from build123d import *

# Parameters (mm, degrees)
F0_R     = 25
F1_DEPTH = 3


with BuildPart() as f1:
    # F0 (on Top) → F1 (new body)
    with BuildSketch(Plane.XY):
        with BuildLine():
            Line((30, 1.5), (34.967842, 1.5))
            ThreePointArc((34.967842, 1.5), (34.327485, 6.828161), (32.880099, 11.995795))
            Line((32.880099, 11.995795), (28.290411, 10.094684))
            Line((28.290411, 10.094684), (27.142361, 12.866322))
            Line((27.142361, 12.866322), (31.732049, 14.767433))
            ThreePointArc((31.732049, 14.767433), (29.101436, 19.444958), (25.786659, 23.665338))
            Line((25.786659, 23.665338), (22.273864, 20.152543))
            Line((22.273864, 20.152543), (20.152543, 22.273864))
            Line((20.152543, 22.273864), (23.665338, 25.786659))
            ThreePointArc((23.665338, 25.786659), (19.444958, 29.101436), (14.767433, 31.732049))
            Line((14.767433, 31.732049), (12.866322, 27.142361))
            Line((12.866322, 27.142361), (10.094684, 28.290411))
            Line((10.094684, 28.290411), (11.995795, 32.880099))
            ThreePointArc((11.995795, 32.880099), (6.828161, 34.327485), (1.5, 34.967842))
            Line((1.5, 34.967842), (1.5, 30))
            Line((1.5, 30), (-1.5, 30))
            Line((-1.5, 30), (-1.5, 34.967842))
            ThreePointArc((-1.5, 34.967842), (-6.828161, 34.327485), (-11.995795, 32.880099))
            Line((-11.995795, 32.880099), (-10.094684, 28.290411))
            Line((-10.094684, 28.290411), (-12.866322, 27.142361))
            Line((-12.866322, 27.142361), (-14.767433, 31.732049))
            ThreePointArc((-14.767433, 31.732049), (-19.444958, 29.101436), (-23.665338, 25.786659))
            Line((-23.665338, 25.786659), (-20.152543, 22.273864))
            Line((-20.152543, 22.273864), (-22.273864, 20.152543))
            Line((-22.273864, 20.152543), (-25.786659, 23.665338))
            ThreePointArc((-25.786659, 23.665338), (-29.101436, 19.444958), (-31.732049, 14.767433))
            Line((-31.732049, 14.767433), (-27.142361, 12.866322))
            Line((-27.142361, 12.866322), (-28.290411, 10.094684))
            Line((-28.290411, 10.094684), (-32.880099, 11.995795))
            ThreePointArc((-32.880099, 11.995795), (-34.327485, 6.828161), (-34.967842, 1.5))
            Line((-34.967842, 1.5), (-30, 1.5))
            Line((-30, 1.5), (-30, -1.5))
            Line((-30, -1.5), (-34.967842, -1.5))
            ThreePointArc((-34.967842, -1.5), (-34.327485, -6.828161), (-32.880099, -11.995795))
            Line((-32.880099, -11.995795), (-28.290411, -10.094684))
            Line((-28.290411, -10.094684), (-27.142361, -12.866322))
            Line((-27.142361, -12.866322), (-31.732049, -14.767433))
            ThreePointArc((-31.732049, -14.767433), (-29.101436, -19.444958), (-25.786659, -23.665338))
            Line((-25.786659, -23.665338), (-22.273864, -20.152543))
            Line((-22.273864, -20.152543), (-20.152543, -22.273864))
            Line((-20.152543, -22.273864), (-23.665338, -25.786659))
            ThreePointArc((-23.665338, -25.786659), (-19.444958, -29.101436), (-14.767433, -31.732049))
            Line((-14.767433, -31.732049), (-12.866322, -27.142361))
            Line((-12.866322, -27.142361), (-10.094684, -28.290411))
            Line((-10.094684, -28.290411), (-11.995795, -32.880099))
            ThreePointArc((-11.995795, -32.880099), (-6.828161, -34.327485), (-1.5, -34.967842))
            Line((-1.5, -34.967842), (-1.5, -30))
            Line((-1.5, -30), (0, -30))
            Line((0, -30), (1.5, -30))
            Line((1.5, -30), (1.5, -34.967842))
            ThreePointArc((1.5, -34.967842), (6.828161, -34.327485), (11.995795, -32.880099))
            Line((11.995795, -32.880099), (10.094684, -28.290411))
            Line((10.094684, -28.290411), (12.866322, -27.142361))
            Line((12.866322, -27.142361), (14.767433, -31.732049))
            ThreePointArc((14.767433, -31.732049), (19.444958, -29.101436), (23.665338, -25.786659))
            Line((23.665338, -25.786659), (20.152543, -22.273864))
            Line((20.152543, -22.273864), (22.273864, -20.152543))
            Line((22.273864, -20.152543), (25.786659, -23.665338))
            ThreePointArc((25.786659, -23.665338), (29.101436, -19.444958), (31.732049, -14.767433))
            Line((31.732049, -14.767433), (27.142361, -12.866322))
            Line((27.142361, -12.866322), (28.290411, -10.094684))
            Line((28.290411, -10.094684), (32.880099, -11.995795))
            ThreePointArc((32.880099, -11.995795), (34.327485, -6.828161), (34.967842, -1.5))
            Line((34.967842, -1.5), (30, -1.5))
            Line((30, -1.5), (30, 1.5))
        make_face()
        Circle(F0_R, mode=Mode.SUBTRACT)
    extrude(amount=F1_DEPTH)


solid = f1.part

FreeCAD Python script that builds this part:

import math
import FreeCAD as App
import Part
import Sketcher

V = App.Vector
Q = App.Units.Quantity

doc = App.newDocument("Part")
body = doc.addObject("PartDesign::Body", "Body")

sketch1 = body.newObject("Sketcher::SketchObject", "Sketch")
sketch1.AttachmentSupport = (doc.getObject("XY_Plane"), [""])
sketch1.MapMode = "FlatFace"
sketch1.addGeometry([
    Part.LineSegment(V(30, 1.5, 0), V(34.967842, 1.5, 0)),
    Part.ArcOfCircle(Part.Circle(V(0.000021, 0.000006, 0), V(0, 0, 1), 34.999978), math.radians(2.456278), math.radians(20.043718)),
    Part.LineSegment(V(32.880099, 11.995795, 0), V(28.290411, 10.094684, 0)),
    Part.LineSegment(V(28.290411, 10.094684, 0), V(27.142361, 12.866322, 0)),
    Part.LineSegment(V(27.142361, 12.866322, 0), V(31.732049, 14.767433, 0)),
    Part.ArcOfCircle(Part.Circle(V(-0.000039, -0.000027, 0), V(0, 0, 1), 35.000047), math.radians(24.956298), math.radians(42.543702)),
    Part.LineSegment(V(25.786659, 23.665338, 0), V(22.273864, 20.152543, 0)),
    Part.LineSegment(V(22.273864, 20.152543, 0), V(20.152543, 22.273864, 0)),
    Part.LineSegment(V(20.152543, 22.273864, 0), V(23.665338, 25.786659, 0)),
    Part.ArcOfCircle(Part.Circle(V(-0.000027, -0.000039, 0), V(0, 0, 1), 35.000047), math.radians(47.456298), math.radians(65.043702)),
    Part.LineSegment(V(14.767433, 31.732049, 0), V(12.866322, 27.142361, 0)),
    Part.LineSegment(V(12.866322, 27.142361, 0), V(10.094684, 28.290411, 0)),
    Part.LineSegment(V(10.094684, 28.290411, 0), V(11.995795, 32.880099, 0)),
    Part.ArcOfCircle(Part.Circle(V(0.000006, 0.000021, 0), V(0, 0, 1), 34.999978), math.radians(69.956282), math.radians(87.543722)),
    Part.LineSegment(V(1.5, 34.967842, 0), V(1.5, 30, 0)),
    Part.LineSegment(V(1.5, 30, 0), V(-1.5, 30, 0)),
    Part.LineSegment(V(-1.5, 30, 0), V(-1.5, 34.967842, 0)),
    Part.ArcOfCircle(Part.Circle(V(-0.000006, 0.000021, 0), V(0, 0, 1), 34.999978), math.radians(92.456278), math.radians(110.043718)),
    Part.LineSegment(V(-11.995795, 32.880099, 0), V(-10.094684, 28.290411, 0)),
    Part.LineSegment(V(-10.094684, 28.290411, 0), V(-12.866322, 27.142361, 0)),
    Part.LineSegment(V(-12.866322, 27.142361, 0), V(-14.767433, 31.732049, 0)),
    Part.ArcOfCircle(Part.Circle(V(0.000027, -0.000039, 0), V(0, 0, 1), 35.000047), math.radians(114.956298), math.radians(132.543702)),
    Part.LineSegment(V(-23.665338, 25.786659, 0), V(-20.152543, 22.273864, 0)),
    Part.LineSegment(V(-20.152543, 22.273864, 0), V(-22.273864, 20.152543, 0)),
    Part.LineSegment(V(-22.273864, 20.152543, 0), V(-25.786659, 23.665338, 0)),
    Part.ArcOfCircle(Part.Circle(V(0.000039, -0.000027, 0), V(0, 0, 1), 35.000047), math.radians(137.456298), math.radians(155.043702)),
    Part.LineSegment(V(-31.732049, 14.767433, 0), V(-27.142361, 12.866322, 0)),
    Part.LineSegment(V(-27.142361, 12.866322, 0), V(-28.290411, 10.094684, 0)),
    Part.LineSegment(V(-28.290411, 10.094684, 0), V(-32.880099, 11.995795, 0)),
    Part.ArcOfCircle(Part.Circle(V(-0.000021, 0.000006, 0), V(0, 0, 1), 34.999978), math.radians(159.956282), math.radians(177.543722)),
    Part.LineSegment(V(-34.967842, 1.5, 0), V(-30, 1.5, 0)),
    Part.LineSegment(V(-30, 1.5, 0), V(-30, -1.5, 0)),
    Part.LineSegment(V(-30, -1.5, 0), V(-34.967842, -1.5, 0)),
    Part.ArcOfCircle(Part.Circle(V(-0.000021, -0.000006, 0), V(0, 0, 1), 34.999978), math.radians(-177.543722), math.radians(-159.956282)),
    Part.LineSegment(V(-32.880099, -11.995795, 0), V(-28.290411, -10.094684, 0)),
    Part.LineSegment(V(-28.290411, -10.094684, 0), V(-27.142361, -12.866322, 0)),
    Part.LineSegment(V(-27.142361, -12.866322, 0), V(-31.732049, -14.767433, 0)),
    Part.ArcOfCircle(Part.Circle(V(0.000039, 0.000027, 0), V(0, 0, 1), 35.000047), math.radians(-155.043702), math.radians(-137.456298)),
    Part.LineSegment(V(-25.786659, -23.665338, 0), V(-22.273864, -20.152543, 0)),
    Part.LineSegment(V(-22.273864, -20.152543, 0), V(-20.152543, -22.273864, 0)),
    Part.LineSegment(V(-20.152543, -22.273864, 0), V(-23.665338, -25.786659, 0)),
    Part.ArcOfCircle(Part.Circle(V(0.000027, 0.000039, 0), V(0, 0, 1), 35.000047), math.radians(-132.543702), math.radians(-114.956298)),
    Part.LineSegment(V(-14.767433, -31.732049, 0), V(-12.866322, -27.142361, 0)),
    Part.LineSegment(V(-12.866322, -27.142361, 0), V(-10.094684, -28.290411, 0)),
    Part.LineSegment(V(-10.094684, -28.290411, 0), V(-11.995795, -32.880099, 0)),
    Part.ArcOfCircle(Part.Circle(V(-0.000006, -0.000021, 0), V(0, 0, 1), 34.999978), math.radians(-110.043718), math.radians(-92.456278)),
    Part.LineSegment(V(-1.5, -34.967842, 0), V(-1.5, -30, 0)),
    Part.LineSegment(V(-1.5, -30, 0), V(1.5, -30, 0)),
    Part.LineSegment(V(1.5, -30, 0), V(1.5, -34.967842, 0)),
    Part.ArcOfCircle(Part.Circle(V(0.000006, -0.000021, 0), V(0, 0, 1), 34.999978), math.radians(-87.543722), math.radians(-69.956282)),
    Part.LineSegment(V(11.995795, -32.880099, 0), V(10.094684, -28.290411, 0)),
    Part.LineSegment(V(10.094684, -28.290411, 0), V(12.866322, -27.142361, 0)),
    Part.LineSegment(V(12.866322, -27.142361, 0), V(14.767433, -31.732049, 0)),
    Part.ArcOfCircle(Part.Circle(V(-0.000027, 0.000039, 0), V(0, 0, 1), 35.000047), math.radians(-65.043702), math.radians(-47.456298)),
    Part.LineSegment(V(23.665338, -25.786659, 0), V(20.152543, -22.273864, 0)),
    Part.LineSegment(V(20.152543, -22.273864, 0), V(22.273864, -20.152543, 0)),
    Part.LineSegment(V(22.273864, -20.152543, 0), V(25.786659, -23.665338, 0)),
    Part.ArcOfCircle(Part.Circle(V(-0.000039, 0.000027, 0), V(0, 0, 1), 35.000047), math.radians(-42.543702), math.radians(-24.956298)),
    Part.LineSegment(V(31.732049, -14.767433, 0), V(27.142361, -12.866322, 0)),
    Part.LineSegment(V(27.142361, -12.866322, 0), V(28.290411, -10.094684, 0)),
    Part.LineSegment(V(28.290411, -10.094684, 0), V(32.880099, -11.995795, 0)),
    Part.ArcOfCircle(Part.Circle(V(0.000021, -0.000006, 0), V(0, 0, 1), 34.999978), math.radians(-20.043718), math.radians(-2.456278)),
    Part.LineSegment(V(34.967842, -1.5, 0), V(30, -1.5, 0)),
    Part.LineSegment(V(30, -1.5, 0), V(30, 1.5, 0)),
    Part.Circle(V(0, 0, 0), V(0, 0, 1), 25),
], False)
sketch1.addConstraint([
    Sketcher.Constraint("Coincident", 0, 2, 1, 1),
    Sketcher.Constraint("Coincident", 1, 2, 2, 1),
    Sketcher.Constraint("Coincident", 2, 2, 3, 1),
    Sketcher.Constraint("Coincident", 3, 2, 4, 1),
    Sketcher.Constraint("Coincident", 4, 2, 5, 1),
    Sketcher.Constraint("Coincident", 5, 2, 6, 1),
    Sketcher.Constraint("Coincident", 6, 2, 7, 1),
    Sketcher.Constraint("Coincident", 7, 2, 8, 1),
    Sketcher.Constraint("Coincident", 8, 2, 9, 1),
    Sketcher.Constraint("Coincident", 9, 2, 10, 1),
    Sketcher.Constraint("Coincident", 10, 2, 11, 1),
    Sketcher.Constraint("Coincident", 11, 2, 12, 1),
    Sketcher.Constraint("Coincident", 12, 2, 13, 1),
    Sketcher.Constraint("Coincident", 13, 2, 14, 1),
    Sketcher.Constraint("Coincident", 14, 2, 15, 1),
    Sketcher.Constraint("Coincident", 15, 2, 16, 1),
    Sketcher.Constraint("Coincident", 16, 2, 17, 1),
    Sketcher.Constraint("Coincident", 17, 2, 18, 1),
    Sketcher.Constraint("Coincident", 18, 2, 19, 1),
    Sketcher.Constraint("Coincident", 19, 2, 20, 1),
    Sketcher.Constraint("Coincident", 20, 2, 21, 1),
    Sketcher.Constraint("Coincident", 21, 2, 22, 1),
    Sketcher.Constraint("Coincident", 22, 2, 23, 1),
    Sketcher.Constraint("Coincident", 23, 2, 24, 1),
    Sketcher.Constraint("Coincident", 24, 2, 25, 1),
    Sketcher.Constraint("Coincident", 25, 2, 26, 1),
    Sketcher.Constraint("Coincident", 26, 2, 27, 1),
    Sketcher.Constraint("Coincident", 27, 2, 28, 1),
    Sketcher.Constraint("Coincident", 28, 2, 29, 1),
    Sketcher.Constraint("Coincident", 29, 2, 30, 1),
    Sketcher.Constraint("Coincident", 30, 2, 31, 1),
    Sketcher.Constraint("Coincident", 31, 2, 32, 1),
    Sketcher.Constraint("Coincident", 32, 2, 33, 1),
    Sketcher.Constraint("Coincident", 33, 2, 34, 1),
    Sketcher.Constraint("Coincident", 34, 2, 35, 1),
    Sketcher.Constraint("Coincident", 35, 2, 36, 1),
    Sketcher.Constraint("Coincident", 36, 2, 37, 1),
    Sketcher.Constraint("Coincident", 37, 2, 38, 1),
    Sketcher.Constraint("Coincident", 38, 2, 39, 1),
    Sketcher.Constraint("Coincident", 39, 2, 40, 1),
    Sketcher.Constraint("Coincident", 40, 2, 41, 1),
    Sketcher.Constraint("Coincident", 41, 2, 42, 1),
    Sketcher.Constraint("Coincident", 42, 2, 43, 1),
    Sketcher.Constraint("Coincident", 43, 2, 44, 1),
    Sketcher.Constraint("Coincident", 44, 2, 45, 1),
    Sketcher.Constraint("Coincident", 45, 2, 46, 1),
    Sketcher.Constraint("Coincident", 46, 2, 47, 1),
    Sketcher.Constraint("Coincident", 47, 2, 48, 1),
    Sketcher.Constraint("Coincident", 48, 2, 49, 1),
    Sketcher.Constraint("Coincident", 49, 2, 50, 1),
    Sketcher.Constraint("Coincident", 50, 2, 51, 1),
    Sketcher.Constraint("Coincident", 51, 2, 52, 1),
    Sketcher.Constraint("Coincident", 52, 2, 53, 1),
    Sketcher.Constraint("Coincident", 53, 2, 54, 1),
    Sketcher.Constraint("Coincident", 54, 2, 55, 1),
    Sketcher.Constraint("Coincident", 55, 2, 56, 1),
    Sketcher.Constraint("Coincident", 56, 2, 57, 1),
    Sketcher.Constraint("Coincident", 57, 2, 58, 1),
    Sketcher.Constraint("Coincident", 58, 2, 59, 1),
    Sketcher.Constraint("Coincident", 59, 2, 60, 1),
    Sketcher.Constraint("Coincident", 60, 2, 61, 1),
    Sketcher.Constraint("Coincident", 61, 2, 62, 1),
    Sketcher.Constraint("Coincident", 62, 2, 63, 1),
    Sketcher.Constraint("Coincident", 63, 2, 0, 1),
    Sketcher.Constraint("Horizontal", 0),
    Sketcher.Constraint("Vertical", 14),
    Sketcher.Constraint("Horizontal", 15),
    Sketcher.Constraint("Vertical", 16),
    Sketcher.Constraint("Horizontal", 30),
    Sketcher.Constraint("Vertical", 31),
    Sketcher.Constraint("Horizontal", 32),
    Sketcher.Constraint("Vertical", 46),
    Sketcher.Constraint("Horizontal", 47),
    Sketcher.Constraint("Vertical", 48),
    Sketcher.Constraint("Horizontal", 62),
    Sketcher.Constraint("Vertical", 63),
    Sketcher.Constraint("Coincident", 64, 3, -1, 1),
    Sketcher.Constraint("Equal", 5, 9),
    Sketcher.Constraint("Equal", 1, 13),
    Sketcher.Constraint("Equal", 13, 17),
    Sketcher.Constraint("Equal", 9, 21),
    Sketcher.Constraint("Equal", 21, 25),
    Sketcher.Constraint("Equal", 17, 29),
    Sketcher.Constraint("Equal", 29, 33),
    Sketcher.Constraint("Equal", 25, 37),
    Sketcher.Constraint("Equal", 37, 41),
    Sketcher.Constraint("Equal", 33, 45),
    Sketcher.Constraint("Equal", 45, 49),
    Sketcher.Constraint("Equal", 41, 53),
    Sketcher.Constraint("Equal", 53, 57),
    Sketcher.Constraint("Equal", 49, 61),
    Sketcher.Constraint("Symmetric", 1, 3, 33, 3, -1, 1),
    Sketcher.Constraint("Symmetric", 5, 3, 37, 3, -1, 1),
    Sketcher.Constraint("Symmetric", 9, 3, 41, 3, -1, 1),
    Sketcher.Constraint("Symmetric", 13, 3, 45, 3, -1, 1),
    Sketcher.Constraint("Symmetric", 17, 3, 49, 3, -1, 1),
    Sketcher.Constraint("Symmetric", 21, 3, 53, 3, -1, 1),
    Sketcher.Constraint("Symmetric", 25, 3, 57, 3, -1, 1),
    Sketcher.Constraint("Symmetric", 29, 3, 61, 3, -1, 1),
    Sketcher.Constraint("Symmetric", 2, 2, 34, 2, -1, 1),
    Sketcher.Constraint("Symmetric", 3, 2, 35, 2, -1, 1),
    Sketcher.Constraint("Symmetric", 6, 2, 38, 2, -1, 1),
    Sketcher.Constraint("Symmetric", 7, 2, 39, 2, -1, 1),
    Sketcher.Constraint("Symmetric", 10, 2, 42, 2, -1, 1),
    Sketcher.Constraint("Symmetric", 11, 2, 43, 2, -1, 1),
    Sketcher.Constraint("Symmetric", 14, 2, 46, 2, -1, 1),
    Sketcher.Constraint("Symmetric", 18, 2, 50, 2, -1, 1),
    Sketcher.Constraint("Symmetric", 19, 2, 51, 2, -1, 1),
    Sketcher.Constraint("Symmetric", 22, 2, 54, 2, -1, 1),
    Sketcher.Constraint("Symmetric", 23, 2, 55, 2, -1, 1),
    Sketcher.Constraint("Symmetric", 26, 2, 58, 2, -1, 1),
    Sketcher.Constraint("Symmetric", 27, 2, 59, 2, -1, 1),
    Sketcher.Constraint("Symmetric", 30, 2, 62, 2, -1, 1),
    Sketcher.Constraint("Symmetric", 13, 3, 17, 3, -2),
    Sketcher.Constraint("Symmetric", 9, 3, 21, 3, -2),
    Sketcher.Constraint("Symmetric", 5, 3, 25, 3, -2),
    Sketcher.Constraint("Symmetric", 1, 3, 29, 3, -2),
    Sketcher.Constraint("Symmetric", 11, 2, 18, 2, -2),
    Sketcher.Constraint("Symmetric", 10, 2, 19, 2, -2),
    Sketcher.Constraint("Symmetric", 7, 2, 22, 2, -2),
    Sketcher.Constraint("Symmetric", 6, 2, 23, 2, -2),
    Sketcher.Constraint("Symmetric", 3, 2, 26, 2, -2),
    Sketcher.Constraint("Symmetric", 2, 2, 27, 2, -2),
    Sketcher.Constraint("Perpendicular", 2, 3),
    Sketcher.Constraint("Perpendicular", 3, 4),
    Sketcher.Constraint("Perpendicular", 6, 7),
    Sketcher.Constraint("Perpendicular", 7, 8),
    Sketcher.Constraint("Perpendicular", 10, 11),
    Sketcher.Constraint("Perpendicular", 11, 12),
    Sketcher.Constraint("Perpendicular", 4, 18),
    Sketcher.Constraint("Perpendicular", 18, 19),
    Sketcher.Constraint("Perpendicular", 19, 20),
    Sketcher.Constraint("Perpendicular", 8, 22),
    Sketcher.Constraint("Perpendicular", 22, 23),
    Sketcher.Constraint("Perpendicular", 23, 24),
    Sketcher.Constraint("Perpendicular", 12, 26),
    Sketcher.Constraint("Perpendicular", 27, 28),
    Sketcher.Constraint("Perpendicular", 20, 34),
    Sketcher.Constraint("Perpendicular", 35, 36),
    Sketcher.Constraint("Perpendicular", 24, 38),
    Sketcher.Constraint("Perpendicular", 39, 40),
    Sketcher.Constraint("Perpendicular", 28, 42),
    Sketcher.Constraint("Perpendicular", 43, 44),
    Sketcher.Constraint("Perpendicular", 36, 50),
    Sketcher.Constraint("Perpendicular", 51, 52),
    Sketcher.Constraint("Perpendicular", 40, 54),
    Sketcher.Constraint("Perpendicular", 55, 56),
    Sketcher.Constraint("Perpendicular", 44, 58),
    Sketcher.Constraint("Perpendicular", 59, 60),
    Sketcher.Constraint("Horizontal", 13, 2, 16, 2),
    Sketcher.Constraint("Horizontal", 0, 2, 29, 2),
    Sketcher.Constraint("Horizontal", 45, 2, 48, 2),
    Sketcher.Constraint("Horizontal", 32, 2, 61, 2),
    Sketcher.Constraint("Equal", 62, 14),
    Sketcher.Constraint("Equal", 47, 31),
    Sketcher.Constraint("Equal", 2, 4),
    Sketcher.Constraint("Equal", 4, 6),
    Sketcher.Constraint("Equal", 3, 7),
    Sketcher.Constraint("Equal", 6, 8),
    Sketcher.Constraint("Equal", 8, 10),
    Sketcher.Constraint("Equal", 7, 11),
    Sketcher.Constraint("Equal", 10, 12),
    Sketcher.Constraint("Diameter", 64, Q("50 mm")),
    Sketcher.Constraint("DistanceX", 15, 2, 15, 1, Q("3 mm")),
    Sketcher.Constraint("Distance", 3, Q("2.999999 mm")),
    Sketcher.Constraint("DistanceY", -1, 1, 14, 2, Q("30 mm")),
    Sketcher.Constraint("DistanceX", 30, 2, -1, 1, Q("30 mm")),
    Sketcher.Constraint("Angle", 2, Q("-157.5 deg")),
    Sketcher.Constraint("Radius", 1, Q("34.999978 mm")),
    Sketcher.Constraint("Radius", 5, Q("35.000047 mm")),
    Sketcher.Constraint("DistanceX", 0, 1, 0, 2, Q("4.967842 mm")),
    Sketcher.Constraint("DistanceX", -1, 1, 1, 2, Q("32.880099 mm")),
    Sketcher.Constraint("DistanceY", -1, 1, 12, 2, Q("32.880099 mm")),
    Sketcher.Constraint("DistanceX", -1, 1, 2, 2, Q("28.290411 mm")),
    Sketcher.Constraint("DistanceX", -1, 1, 5, 2, Q("25.786659 mm")),
    Sketcher.Constraint("DistanceY", -1, 1, 5, 2, Q("23.665338 mm")),
    Sketcher.Constraint("DistanceY", -1, 1, 1, 2, Q("11.995795 mm")),
    Sketcher.Constraint("DistanceX", -1, 1, 9, 2, Q("14.767433 mm")),
])
pad1 = body.newObject("PartDesign::Pad", "Pad")
pad1.Profile = sketch1
pad1.Length = 3

doc.recompute()
